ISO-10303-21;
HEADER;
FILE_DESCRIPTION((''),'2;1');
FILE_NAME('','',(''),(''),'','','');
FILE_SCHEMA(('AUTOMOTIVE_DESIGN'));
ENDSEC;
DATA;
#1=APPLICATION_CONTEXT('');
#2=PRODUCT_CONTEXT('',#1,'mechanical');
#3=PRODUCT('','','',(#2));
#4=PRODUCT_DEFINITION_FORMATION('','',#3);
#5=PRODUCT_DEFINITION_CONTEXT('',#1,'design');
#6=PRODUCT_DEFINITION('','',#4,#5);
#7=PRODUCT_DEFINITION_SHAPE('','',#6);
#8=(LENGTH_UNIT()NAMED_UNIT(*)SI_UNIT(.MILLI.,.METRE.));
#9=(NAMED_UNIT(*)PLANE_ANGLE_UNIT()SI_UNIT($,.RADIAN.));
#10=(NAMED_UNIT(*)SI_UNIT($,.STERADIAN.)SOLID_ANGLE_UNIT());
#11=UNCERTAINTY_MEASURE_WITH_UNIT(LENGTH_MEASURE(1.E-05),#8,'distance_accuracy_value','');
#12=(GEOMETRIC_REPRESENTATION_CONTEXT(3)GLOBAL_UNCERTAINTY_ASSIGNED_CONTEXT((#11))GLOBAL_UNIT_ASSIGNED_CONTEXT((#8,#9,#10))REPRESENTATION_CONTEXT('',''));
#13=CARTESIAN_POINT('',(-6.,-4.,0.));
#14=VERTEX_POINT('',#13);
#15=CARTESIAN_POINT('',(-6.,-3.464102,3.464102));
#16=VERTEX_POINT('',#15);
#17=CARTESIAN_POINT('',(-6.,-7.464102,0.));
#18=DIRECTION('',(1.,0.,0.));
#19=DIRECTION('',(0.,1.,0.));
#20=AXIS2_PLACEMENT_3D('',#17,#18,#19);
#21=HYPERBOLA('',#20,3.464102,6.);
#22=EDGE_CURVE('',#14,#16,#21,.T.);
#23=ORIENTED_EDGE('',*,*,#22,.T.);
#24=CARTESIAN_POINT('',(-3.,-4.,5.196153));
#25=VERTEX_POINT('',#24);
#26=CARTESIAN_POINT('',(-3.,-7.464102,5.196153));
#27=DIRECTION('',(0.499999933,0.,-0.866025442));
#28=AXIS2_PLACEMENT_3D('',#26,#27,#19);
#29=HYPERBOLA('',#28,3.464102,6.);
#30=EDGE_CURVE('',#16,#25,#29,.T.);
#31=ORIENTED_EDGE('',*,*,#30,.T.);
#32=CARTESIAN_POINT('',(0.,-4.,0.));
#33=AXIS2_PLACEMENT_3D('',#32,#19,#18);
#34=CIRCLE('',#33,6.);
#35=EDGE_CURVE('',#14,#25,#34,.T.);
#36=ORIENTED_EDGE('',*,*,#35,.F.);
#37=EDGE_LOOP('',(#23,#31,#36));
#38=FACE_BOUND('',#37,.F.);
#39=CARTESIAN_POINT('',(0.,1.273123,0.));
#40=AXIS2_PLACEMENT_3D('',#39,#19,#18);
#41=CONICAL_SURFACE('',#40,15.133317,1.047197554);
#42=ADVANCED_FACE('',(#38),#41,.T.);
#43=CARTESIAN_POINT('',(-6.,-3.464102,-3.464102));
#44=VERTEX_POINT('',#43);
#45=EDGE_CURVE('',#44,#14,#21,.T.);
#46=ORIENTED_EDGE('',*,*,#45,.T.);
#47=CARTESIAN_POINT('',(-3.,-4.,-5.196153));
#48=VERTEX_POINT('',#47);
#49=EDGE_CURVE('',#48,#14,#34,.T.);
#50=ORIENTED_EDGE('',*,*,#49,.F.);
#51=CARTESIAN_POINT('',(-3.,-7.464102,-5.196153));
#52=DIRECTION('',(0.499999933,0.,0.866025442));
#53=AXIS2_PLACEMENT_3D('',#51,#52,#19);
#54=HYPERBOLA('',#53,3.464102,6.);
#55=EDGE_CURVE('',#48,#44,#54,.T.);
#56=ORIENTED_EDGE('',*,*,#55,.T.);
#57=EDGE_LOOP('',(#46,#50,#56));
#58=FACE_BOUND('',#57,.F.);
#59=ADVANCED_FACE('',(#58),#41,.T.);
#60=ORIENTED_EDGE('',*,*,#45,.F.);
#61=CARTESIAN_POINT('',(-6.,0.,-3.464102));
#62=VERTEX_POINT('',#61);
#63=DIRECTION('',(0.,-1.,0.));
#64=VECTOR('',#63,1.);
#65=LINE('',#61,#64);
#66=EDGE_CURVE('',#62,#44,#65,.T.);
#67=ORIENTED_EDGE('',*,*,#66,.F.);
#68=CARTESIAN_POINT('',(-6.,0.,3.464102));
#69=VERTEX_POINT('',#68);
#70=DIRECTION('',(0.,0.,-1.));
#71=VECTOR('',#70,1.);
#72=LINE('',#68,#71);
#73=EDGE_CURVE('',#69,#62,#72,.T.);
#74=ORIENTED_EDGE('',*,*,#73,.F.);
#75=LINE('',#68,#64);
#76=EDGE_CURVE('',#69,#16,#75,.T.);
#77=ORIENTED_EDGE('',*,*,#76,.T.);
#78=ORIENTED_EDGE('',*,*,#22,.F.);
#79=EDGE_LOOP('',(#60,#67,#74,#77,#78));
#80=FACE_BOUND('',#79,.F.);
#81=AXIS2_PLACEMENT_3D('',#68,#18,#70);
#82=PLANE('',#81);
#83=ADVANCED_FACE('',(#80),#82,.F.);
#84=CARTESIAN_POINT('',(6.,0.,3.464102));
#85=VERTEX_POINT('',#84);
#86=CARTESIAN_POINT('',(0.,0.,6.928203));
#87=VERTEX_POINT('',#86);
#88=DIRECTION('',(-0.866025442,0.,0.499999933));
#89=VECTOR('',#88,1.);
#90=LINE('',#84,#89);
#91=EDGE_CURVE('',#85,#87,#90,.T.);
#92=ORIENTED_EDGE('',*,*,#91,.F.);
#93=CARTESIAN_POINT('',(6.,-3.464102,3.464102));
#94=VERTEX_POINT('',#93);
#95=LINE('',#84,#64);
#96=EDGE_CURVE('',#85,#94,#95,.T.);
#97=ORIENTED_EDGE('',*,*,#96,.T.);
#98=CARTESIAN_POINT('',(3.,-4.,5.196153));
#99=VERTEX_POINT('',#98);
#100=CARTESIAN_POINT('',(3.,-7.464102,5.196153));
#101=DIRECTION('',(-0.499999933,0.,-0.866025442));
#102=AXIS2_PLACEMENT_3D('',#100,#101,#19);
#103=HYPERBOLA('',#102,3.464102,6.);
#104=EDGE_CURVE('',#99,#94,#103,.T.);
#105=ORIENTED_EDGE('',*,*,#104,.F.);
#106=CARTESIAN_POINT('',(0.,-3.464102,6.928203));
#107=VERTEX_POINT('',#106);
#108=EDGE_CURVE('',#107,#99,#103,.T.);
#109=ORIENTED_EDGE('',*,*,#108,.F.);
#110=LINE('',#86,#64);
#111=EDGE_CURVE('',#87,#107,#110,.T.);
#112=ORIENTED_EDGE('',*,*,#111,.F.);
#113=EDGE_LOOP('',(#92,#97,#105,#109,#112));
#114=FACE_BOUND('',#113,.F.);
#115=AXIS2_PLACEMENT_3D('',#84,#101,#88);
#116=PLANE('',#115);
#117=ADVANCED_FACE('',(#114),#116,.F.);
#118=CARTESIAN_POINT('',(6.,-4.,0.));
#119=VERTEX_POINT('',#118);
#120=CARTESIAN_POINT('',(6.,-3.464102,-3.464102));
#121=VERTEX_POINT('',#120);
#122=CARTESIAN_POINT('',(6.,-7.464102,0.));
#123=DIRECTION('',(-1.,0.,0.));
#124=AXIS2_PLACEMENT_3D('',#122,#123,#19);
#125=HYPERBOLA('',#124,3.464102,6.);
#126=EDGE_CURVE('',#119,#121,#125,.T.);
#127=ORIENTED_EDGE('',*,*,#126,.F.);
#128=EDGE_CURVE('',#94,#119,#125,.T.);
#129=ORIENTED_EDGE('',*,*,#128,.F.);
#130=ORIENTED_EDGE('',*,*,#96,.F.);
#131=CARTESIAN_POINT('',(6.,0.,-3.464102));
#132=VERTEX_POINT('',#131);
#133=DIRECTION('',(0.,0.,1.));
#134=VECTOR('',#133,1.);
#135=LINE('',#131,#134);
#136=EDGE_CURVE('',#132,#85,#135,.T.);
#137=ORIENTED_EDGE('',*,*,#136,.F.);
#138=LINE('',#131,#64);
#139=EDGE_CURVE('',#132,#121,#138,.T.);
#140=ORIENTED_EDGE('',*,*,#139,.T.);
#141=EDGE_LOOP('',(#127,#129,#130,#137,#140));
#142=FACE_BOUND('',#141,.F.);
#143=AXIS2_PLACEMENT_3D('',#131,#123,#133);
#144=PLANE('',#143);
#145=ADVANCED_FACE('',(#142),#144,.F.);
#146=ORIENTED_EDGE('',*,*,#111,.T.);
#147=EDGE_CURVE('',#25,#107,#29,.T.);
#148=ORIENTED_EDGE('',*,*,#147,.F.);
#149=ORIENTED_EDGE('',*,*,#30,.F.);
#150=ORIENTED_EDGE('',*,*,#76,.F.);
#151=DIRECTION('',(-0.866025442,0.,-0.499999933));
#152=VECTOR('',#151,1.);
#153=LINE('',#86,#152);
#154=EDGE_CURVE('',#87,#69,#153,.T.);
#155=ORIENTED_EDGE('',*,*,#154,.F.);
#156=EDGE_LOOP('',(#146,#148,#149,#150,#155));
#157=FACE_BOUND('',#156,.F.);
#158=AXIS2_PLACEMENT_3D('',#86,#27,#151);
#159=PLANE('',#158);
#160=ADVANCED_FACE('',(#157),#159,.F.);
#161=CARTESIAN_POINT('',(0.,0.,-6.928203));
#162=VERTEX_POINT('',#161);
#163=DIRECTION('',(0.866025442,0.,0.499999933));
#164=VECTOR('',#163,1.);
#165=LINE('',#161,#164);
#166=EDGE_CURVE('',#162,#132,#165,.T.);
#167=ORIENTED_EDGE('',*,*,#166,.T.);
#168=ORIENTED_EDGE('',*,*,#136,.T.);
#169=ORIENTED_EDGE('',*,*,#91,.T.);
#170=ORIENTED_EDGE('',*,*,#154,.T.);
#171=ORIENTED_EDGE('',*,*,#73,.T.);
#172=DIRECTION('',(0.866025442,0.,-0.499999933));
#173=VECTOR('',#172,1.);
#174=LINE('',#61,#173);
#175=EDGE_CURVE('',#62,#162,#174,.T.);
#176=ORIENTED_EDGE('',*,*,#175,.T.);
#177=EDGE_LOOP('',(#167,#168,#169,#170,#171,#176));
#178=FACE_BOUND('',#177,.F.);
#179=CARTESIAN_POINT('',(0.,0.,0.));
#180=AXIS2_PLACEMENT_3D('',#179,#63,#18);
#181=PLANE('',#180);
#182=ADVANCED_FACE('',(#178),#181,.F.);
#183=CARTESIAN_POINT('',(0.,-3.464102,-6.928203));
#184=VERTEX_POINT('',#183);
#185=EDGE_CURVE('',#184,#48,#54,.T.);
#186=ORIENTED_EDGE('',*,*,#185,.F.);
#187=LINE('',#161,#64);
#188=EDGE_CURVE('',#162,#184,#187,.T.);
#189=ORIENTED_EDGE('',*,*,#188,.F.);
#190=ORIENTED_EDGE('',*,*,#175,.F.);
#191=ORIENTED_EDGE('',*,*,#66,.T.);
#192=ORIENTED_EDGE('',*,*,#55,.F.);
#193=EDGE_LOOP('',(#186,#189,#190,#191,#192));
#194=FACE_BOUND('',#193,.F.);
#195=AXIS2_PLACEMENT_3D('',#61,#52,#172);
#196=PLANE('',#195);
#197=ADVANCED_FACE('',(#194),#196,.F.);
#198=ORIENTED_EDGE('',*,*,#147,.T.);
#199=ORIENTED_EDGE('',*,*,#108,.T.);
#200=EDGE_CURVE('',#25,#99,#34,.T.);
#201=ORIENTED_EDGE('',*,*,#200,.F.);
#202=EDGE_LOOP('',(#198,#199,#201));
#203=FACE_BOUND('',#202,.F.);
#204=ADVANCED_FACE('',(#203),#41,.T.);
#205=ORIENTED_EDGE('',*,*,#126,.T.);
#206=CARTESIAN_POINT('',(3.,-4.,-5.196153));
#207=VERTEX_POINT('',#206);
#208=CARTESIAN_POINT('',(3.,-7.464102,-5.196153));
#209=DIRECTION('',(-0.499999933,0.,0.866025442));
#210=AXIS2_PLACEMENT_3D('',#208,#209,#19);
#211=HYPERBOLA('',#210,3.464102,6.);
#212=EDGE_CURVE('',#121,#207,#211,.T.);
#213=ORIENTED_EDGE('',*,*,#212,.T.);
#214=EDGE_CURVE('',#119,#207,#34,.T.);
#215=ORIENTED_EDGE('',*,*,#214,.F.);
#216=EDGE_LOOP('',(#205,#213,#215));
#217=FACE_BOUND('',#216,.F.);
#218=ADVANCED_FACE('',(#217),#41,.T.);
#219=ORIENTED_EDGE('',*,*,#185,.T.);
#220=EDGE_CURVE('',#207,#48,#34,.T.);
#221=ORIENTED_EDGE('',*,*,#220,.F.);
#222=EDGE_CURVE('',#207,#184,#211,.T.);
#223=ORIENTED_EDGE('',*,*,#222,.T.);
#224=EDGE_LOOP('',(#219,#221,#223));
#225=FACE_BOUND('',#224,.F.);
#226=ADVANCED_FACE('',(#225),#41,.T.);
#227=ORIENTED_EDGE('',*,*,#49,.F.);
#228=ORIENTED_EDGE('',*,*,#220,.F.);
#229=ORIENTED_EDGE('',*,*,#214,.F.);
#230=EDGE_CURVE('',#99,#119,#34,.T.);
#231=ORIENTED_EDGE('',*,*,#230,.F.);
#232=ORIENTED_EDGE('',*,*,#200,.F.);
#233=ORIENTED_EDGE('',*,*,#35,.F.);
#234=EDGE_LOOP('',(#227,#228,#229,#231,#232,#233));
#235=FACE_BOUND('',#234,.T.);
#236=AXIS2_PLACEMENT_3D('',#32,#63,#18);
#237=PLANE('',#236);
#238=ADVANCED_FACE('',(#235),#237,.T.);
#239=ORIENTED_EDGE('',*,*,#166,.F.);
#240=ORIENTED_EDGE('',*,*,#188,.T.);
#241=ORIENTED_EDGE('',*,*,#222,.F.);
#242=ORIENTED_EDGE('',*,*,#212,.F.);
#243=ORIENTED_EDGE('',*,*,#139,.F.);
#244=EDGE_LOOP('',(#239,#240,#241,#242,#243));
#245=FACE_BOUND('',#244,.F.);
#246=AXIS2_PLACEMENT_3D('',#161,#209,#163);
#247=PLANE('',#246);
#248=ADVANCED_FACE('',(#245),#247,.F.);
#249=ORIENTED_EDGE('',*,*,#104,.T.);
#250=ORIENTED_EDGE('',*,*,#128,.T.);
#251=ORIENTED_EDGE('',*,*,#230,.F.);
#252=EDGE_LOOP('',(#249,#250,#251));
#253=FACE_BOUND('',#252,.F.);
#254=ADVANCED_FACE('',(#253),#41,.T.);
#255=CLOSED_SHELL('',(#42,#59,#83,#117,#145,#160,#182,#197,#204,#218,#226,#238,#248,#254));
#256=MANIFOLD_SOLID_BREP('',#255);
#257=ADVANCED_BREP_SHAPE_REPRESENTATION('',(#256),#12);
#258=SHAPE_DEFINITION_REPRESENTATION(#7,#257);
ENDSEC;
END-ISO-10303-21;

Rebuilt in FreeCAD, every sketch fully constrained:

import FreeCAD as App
import Part
import Sketcher
from FreeCAD import Vector
Q = App.Units.Quantity

doc = App.newDocument("Part")
body = doc.addObject("PartDesign::Body", "Body")

# Sketch on XZ plane
sketch1 = body.newObject("Sketcher::SketchObject", "Sketch")
sketch1.AttachmentSupport = (doc.getObject("XZ_Plane"), [""])
sketch1.MapMode = "FlatFace"
sketch1.addGeometry([
    Part.LineSegment(Vector(0, 7, 0), Vector(-6, 3, 0)),  # 0
    Part.LineSegment(Vector(-6, 3, 0), Vector(-6, -3, 0)),  # 1
    Part.LineSegment(Vector(-6, -3, 0), Vector(0, -7, 0)),  # 2
    Part.LineSegment(Vector(0, -7, 0), Vector(6, -3, 0)),  # 3
    Part.LineSegment(Vector(6, -3, 0), Vector(6, 3, 0)),  # 4
    Part.LineSegment(Vector(6, 3, 0), Vector(0, 7, 0)),  # 5
], False)
sketch1.addConstraint([
    Sketcher.Constraint("Coincident", 0, 2, 1, 1),
    Sketcher.Constraint("Coincident", 1, 2, 2, 1),
    Sketcher.Constraint("Coincident", 2, 2, 3, 1),
    Sketcher.Constraint("Coincident", 3, 2, 4, 1),
    Sketcher.Constraint("Coincident", 4, 2, 5, 1),
    Sketcher.Constraint("Coincident", 5, 2, 0, 1),
    Sketcher.Constraint("Vertical", 1),
    Sketcher.Constraint("Vertical", 4),
    Sketcher.Constraint("Symmetric", 0, 2, 3, 2, -1, 1),
    Sketcher.Constraint("Symmetric", 2, 2, 5, 2, -1, 1),
    Sketcher.Constraint("PointOnObject", 2, 2, -2),
    Sketcher.Constraint("Parallel", 2, 5),
    Sketcher.Constraint("Horizontal", 1, 2, 3, 2),
    Sketcher.Constraint("Angle", 0, Q("-150.000004 deg")),
    Sketcher.Constraint("DistanceX", 0, 2, -1, 1, Q("6 mm")),
    Sketcher.Constraint("DistanceY", -1, 1, 0, 2, Q("3.464102 mm")),
])
pad1 = body.newObject("PartDesign::Pad", "Pad")
pad1.Profile = sketch1
pad1.Length = 4

# Sketch on XY plane
sketch2 = body.newObject("Sketcher::SketchObject", "Sketch001")
sketch2.AttachmentSupport = (doc.getObject("XY_Plane"), [""])
sketch2.MapMode = "FlatFace"
sketch2.addGeometry([
    Part.LineSegment(Vector(15, 1, 0), Vector(6, -4, 0)),
    Part.LineSegment(Vector(6, -4, 0), Vector(15, -4, 0)),
    Part.LineSegment(Vector(15, -4, 0), Vector(15, 1, 0)),
], False)
sketch2.addConstraint([
    Sketcher.Constraint("Coincident", 0, 2, 1, 1),
    Sketcher.Constraint("Coincident", 1, 2, 2, 1),
    Sketcher.Constraint("Coincident", 2, 2, 0, 1),
    Sketcher.Constraint("Horizontal", 1),
    Sketcher.Constraint("Vertical", 2),
    Sketcher.Constraint("Angle", 0, Q("-150 deg")),
    Sketcher.Constraint("DistanceX", -1, 1, 0, 2, Q("6 mm")),
    Sketcher.Constraint("DistanceY", 0, 2, -1, 1, Q("4 mm")),
    Sketcher.Constraint("DistanceX", 1, 1, 1, 2, Q("9.133317 mm")),
])
groove = body.newObject("PartDesign::Groove", "Groove")
groove.Profile = sketch2
groove.ReferenceAxis = (sketch2, ["V_Axis"])
groove.Angle = 360

doc.recompute()
